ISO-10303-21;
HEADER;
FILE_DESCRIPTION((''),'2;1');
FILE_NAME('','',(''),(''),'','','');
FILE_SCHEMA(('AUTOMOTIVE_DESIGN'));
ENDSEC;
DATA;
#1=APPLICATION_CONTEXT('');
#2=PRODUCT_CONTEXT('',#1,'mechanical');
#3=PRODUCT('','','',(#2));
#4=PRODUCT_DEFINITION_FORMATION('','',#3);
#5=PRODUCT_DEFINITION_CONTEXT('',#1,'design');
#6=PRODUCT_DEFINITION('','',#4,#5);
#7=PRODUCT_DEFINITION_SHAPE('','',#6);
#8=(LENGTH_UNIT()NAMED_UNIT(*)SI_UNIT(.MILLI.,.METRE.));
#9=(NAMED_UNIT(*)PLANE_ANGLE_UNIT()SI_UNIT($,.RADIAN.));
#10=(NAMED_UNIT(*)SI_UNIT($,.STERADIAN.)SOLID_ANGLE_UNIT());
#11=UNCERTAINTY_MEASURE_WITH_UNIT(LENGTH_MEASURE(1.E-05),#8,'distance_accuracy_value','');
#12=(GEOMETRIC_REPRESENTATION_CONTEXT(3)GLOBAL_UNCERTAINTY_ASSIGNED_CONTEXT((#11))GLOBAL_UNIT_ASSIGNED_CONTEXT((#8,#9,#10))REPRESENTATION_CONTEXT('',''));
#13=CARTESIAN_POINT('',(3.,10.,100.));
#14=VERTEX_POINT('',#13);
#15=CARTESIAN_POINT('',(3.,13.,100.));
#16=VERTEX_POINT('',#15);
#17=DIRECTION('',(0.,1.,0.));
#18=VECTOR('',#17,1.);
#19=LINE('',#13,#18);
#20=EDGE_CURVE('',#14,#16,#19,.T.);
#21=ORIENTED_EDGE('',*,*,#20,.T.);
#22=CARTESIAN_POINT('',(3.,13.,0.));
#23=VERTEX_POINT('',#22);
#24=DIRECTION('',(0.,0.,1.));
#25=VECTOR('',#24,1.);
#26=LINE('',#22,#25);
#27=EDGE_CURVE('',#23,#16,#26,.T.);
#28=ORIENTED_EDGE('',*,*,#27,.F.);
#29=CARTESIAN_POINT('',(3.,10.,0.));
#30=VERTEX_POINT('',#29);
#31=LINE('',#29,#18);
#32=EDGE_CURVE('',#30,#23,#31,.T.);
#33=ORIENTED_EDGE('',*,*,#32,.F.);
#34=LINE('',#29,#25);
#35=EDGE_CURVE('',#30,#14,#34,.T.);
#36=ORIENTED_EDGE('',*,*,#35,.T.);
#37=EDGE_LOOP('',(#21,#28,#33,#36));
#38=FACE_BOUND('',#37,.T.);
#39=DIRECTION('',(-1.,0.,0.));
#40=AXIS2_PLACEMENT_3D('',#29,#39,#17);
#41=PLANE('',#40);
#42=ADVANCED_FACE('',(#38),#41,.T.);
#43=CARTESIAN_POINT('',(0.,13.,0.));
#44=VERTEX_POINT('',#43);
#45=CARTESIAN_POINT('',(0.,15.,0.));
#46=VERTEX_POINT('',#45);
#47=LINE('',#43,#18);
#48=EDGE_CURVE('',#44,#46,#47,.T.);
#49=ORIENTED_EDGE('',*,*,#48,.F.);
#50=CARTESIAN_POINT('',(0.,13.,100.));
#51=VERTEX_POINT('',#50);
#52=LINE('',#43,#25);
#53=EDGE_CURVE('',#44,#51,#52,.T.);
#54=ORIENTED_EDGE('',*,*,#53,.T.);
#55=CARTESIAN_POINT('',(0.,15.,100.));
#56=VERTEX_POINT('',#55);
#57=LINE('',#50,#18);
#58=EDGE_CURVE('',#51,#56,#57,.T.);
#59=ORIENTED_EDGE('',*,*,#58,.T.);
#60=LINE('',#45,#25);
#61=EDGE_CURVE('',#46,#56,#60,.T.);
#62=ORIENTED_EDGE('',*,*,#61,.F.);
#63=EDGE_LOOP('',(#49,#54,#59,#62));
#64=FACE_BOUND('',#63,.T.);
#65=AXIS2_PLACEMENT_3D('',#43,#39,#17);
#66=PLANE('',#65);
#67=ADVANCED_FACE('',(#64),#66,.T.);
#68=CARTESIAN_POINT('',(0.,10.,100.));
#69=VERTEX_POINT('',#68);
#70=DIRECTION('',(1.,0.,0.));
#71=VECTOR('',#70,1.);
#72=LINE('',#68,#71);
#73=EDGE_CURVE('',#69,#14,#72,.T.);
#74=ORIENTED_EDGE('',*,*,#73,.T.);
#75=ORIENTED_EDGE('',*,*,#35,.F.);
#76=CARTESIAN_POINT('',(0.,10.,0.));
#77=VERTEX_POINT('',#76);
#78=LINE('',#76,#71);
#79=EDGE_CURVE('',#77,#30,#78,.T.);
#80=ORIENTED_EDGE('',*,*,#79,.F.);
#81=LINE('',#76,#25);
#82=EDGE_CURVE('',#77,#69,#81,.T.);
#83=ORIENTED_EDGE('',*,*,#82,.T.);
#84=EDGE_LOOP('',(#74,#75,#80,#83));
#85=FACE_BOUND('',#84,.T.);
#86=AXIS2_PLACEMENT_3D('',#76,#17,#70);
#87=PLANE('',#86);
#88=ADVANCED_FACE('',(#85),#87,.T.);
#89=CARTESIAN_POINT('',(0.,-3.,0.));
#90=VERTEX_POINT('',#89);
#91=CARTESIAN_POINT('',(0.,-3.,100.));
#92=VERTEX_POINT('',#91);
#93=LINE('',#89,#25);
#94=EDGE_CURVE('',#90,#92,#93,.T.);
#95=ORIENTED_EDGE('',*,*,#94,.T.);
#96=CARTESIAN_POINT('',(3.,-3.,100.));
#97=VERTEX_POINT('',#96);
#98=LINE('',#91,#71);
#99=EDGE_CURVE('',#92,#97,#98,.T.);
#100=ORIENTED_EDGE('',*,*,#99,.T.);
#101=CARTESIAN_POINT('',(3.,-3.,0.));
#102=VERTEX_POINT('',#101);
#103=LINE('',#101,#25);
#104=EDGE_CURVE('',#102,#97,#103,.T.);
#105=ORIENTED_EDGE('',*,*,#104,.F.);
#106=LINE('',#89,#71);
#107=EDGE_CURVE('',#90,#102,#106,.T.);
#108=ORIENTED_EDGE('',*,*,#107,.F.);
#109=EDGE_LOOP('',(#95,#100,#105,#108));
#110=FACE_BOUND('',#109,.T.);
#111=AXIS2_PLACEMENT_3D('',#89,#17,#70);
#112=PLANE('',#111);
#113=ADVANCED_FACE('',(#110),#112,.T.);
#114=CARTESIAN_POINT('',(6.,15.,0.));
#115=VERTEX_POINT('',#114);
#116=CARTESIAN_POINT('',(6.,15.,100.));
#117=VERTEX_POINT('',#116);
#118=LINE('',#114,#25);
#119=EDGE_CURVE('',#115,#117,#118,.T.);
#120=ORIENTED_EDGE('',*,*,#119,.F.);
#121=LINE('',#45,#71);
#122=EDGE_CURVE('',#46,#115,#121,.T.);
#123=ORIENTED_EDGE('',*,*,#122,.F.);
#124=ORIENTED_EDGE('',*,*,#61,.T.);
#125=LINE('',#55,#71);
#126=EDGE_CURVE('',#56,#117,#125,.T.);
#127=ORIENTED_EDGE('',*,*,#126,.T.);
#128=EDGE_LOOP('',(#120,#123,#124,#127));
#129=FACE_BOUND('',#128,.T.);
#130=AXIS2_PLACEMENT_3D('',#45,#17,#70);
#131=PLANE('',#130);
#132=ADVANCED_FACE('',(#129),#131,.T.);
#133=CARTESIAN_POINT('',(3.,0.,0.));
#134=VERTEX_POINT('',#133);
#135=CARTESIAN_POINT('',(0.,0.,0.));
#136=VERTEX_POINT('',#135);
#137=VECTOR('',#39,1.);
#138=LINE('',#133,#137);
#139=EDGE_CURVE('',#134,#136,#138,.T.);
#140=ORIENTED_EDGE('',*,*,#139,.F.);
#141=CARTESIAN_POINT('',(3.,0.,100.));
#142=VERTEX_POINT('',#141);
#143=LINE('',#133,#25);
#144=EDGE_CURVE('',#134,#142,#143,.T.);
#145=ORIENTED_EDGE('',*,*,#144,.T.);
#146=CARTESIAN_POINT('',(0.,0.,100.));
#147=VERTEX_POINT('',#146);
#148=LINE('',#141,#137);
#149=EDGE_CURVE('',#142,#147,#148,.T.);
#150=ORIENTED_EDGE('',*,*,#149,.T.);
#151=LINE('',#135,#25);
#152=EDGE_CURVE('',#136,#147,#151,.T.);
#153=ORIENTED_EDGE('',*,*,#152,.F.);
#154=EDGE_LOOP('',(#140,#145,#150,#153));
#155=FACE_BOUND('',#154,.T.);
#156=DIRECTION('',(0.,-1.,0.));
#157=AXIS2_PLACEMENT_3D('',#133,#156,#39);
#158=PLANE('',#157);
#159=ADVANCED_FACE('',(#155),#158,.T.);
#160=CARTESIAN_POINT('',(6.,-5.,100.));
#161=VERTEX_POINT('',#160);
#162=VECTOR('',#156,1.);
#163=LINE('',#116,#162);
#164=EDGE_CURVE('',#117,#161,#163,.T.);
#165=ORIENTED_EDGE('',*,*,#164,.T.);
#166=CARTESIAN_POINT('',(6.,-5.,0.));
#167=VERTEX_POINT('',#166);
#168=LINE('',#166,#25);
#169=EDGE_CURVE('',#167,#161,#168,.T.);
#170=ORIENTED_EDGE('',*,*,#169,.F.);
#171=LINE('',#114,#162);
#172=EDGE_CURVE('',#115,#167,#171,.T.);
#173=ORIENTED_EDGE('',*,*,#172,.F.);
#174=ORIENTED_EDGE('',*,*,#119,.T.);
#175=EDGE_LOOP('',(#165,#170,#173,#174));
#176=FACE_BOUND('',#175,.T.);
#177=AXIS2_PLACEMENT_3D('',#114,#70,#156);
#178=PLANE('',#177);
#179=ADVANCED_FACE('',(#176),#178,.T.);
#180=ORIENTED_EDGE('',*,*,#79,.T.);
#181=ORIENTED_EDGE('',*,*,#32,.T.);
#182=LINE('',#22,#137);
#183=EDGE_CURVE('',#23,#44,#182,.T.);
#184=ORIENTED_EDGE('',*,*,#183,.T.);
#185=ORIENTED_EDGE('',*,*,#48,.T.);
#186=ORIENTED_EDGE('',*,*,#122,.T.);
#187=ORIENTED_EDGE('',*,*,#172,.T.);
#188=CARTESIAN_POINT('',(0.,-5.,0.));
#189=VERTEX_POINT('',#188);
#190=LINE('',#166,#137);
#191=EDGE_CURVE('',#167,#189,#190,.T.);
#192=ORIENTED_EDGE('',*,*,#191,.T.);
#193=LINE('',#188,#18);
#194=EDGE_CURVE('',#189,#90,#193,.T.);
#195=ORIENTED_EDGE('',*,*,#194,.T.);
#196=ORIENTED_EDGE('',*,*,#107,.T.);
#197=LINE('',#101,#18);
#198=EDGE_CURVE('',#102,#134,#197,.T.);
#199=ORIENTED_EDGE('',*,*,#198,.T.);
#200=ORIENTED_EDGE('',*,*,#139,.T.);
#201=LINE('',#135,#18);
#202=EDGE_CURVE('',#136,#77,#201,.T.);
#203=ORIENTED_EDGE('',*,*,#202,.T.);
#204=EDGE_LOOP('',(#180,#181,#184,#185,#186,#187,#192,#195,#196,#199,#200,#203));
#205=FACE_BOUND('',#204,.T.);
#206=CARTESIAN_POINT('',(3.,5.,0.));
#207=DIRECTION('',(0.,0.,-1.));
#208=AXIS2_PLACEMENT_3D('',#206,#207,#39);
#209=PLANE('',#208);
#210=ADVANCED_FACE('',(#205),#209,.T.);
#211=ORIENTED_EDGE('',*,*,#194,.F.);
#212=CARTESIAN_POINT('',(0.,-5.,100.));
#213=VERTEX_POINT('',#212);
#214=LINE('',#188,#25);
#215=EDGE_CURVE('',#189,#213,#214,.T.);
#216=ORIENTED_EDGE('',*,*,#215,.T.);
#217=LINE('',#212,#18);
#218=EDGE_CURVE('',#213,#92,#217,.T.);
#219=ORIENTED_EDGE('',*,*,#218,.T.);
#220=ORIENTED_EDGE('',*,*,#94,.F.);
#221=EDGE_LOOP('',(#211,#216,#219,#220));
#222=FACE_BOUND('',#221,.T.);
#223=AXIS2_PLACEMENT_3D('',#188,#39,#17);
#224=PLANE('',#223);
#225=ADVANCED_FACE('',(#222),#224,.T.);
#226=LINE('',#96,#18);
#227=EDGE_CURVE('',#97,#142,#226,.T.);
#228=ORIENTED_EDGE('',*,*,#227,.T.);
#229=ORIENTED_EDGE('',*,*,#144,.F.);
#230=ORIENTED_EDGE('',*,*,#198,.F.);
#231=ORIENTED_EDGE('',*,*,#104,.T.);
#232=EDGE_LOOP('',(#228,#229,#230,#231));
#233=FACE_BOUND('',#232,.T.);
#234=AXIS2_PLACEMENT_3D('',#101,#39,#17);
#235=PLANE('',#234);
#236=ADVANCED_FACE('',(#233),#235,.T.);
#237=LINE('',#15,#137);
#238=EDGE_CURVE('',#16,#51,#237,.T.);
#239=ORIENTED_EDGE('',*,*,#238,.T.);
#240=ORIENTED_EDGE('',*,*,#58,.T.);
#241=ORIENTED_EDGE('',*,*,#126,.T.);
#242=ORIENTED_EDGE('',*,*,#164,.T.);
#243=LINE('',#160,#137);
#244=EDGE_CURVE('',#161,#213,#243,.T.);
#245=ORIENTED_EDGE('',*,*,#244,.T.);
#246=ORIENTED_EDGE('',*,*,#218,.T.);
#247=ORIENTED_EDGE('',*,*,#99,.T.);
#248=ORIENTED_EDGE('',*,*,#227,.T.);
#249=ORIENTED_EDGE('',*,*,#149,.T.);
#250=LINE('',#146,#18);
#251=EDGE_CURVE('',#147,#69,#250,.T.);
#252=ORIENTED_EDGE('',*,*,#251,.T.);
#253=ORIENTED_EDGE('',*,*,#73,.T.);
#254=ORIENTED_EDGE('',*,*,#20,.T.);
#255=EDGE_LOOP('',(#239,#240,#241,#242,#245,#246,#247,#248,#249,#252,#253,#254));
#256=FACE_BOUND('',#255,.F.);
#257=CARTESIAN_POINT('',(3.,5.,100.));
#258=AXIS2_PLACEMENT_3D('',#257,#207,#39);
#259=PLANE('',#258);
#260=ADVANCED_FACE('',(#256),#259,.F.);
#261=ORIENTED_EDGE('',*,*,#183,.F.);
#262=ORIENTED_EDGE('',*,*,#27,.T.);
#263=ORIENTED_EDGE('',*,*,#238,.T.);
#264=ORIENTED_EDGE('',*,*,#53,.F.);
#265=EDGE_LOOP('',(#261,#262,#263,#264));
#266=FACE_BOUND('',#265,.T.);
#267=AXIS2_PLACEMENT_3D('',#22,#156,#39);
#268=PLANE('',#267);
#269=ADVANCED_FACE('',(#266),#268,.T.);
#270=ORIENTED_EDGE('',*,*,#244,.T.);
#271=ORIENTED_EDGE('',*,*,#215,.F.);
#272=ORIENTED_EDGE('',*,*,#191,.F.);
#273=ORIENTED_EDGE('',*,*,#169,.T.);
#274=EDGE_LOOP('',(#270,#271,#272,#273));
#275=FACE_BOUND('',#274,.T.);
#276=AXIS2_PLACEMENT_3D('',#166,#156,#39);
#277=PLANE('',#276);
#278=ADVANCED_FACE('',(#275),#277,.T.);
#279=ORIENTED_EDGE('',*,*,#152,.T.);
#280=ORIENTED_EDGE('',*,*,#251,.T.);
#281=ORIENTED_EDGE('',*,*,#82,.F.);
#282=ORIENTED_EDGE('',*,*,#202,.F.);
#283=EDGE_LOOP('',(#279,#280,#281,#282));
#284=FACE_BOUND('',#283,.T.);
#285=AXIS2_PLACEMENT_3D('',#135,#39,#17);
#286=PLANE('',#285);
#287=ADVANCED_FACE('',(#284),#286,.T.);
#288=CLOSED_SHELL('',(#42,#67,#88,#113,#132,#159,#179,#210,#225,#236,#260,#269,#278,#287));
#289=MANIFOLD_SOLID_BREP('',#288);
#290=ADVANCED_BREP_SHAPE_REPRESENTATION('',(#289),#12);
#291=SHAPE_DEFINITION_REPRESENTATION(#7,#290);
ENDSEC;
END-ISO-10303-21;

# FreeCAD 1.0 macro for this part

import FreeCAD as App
import Part
import Sketcher

V = App.Vector

doc = App.newDocument("Part")
body = doc.addObject("PartDesign::Body", "Body")

# Sketch on XY plane
sketch1 = body.newObject("Sketcher::SketchObject", "Sketch")
sketch1.AttachmentSupport = (doc.getObject("XY_Plane"), [""])
sketch1.MapMode = "FlatFace"
sketch1.addGeometry(Part.LineSegment(V(0, 10, 0), V(0, 0, 0)), False)
sketch1.addGeometry(Part.LineSegment(V(0, 0, 0), V(3, 0, 0)), False)
sketch1.addGeometry(Part.LineSegment(V(3, 0, 0), V(3, -3, 0)), False)
sketch1.addGeometry(Part.LineSegment(V(3, -3, 0), V(0, -3, 0)), False)
sketch1.addGeometry(Part.LineSegment(V(0, -3, 0), V(0, -5, 0)), False)
sketch1.addGeometry(Part.LineSegment(V(0, -5, 0), V(6, -5, 0)), False)
sketch1.addGeometry(Part.LineSegment(V(6, -5, 0), V(6, 15, 0)), False)
sketch1.addGeometry(Part.LineSegment(V(6, 15, 0), V(0, 15, 0)), False)
sketch1.addGeometry(Part.LineSegment(V(0, 15, 0), V(0, 13, 0)), False)
sketch1.addGeometry(Part.LineSegment(V(0, 13, 0), V(3, 13, 0)), False)
sketch1.addGeometry(Part.LineSegment(V(3, 13, 0), V(3, 10, 0)), False)
sketch1.addGeometry(Part.LineSegment(V(3, 10, 0), V(0, 10, 0)), False)
sketch1.addConstraint(Sketcher.Constraint("Coincident", 0, 2, 1, 1))
sketch1.addConstraint(Sketcher.Constraint("Coincident", 1, 2, 2, 1))
sketch1.addConstraint(Sketcher.Constraint("Coincident", 2, 2, 3, 1))
sketch1.addConstraint(Sketcher.Constraint("Coincident", 3, 2, 4, 1))
sketch1.addConstraint(Sketcher.Constraint("Coincident", 4, 2, 5, 1))
sketch1.addConstraint(Sketcher.Constraint("Coincident", 5, 2, 6, 1))
sketch1.addConstraint(Sketcher.Constraint("Coincident", 6, 2, 7, 1))
sketch1.addConstraint(Sketcher.Constraint("Coincident", 7, 2, 8, 1))
sketch1.addConstraint(Sketcher.Constraint("Coincident", 8, 2, 9, 1))
sketch1.addConstraint(Sketcher.Constraint("Coincident", 9, 2, 10, 1))
sketch1.addConstraint(Sketcher.Constraint("Coincident", 10, 2, 11, 1))
sketch1.addConstraint(Sketcher.Constraint("Coincident", 11, 2, 0, 1))
sketch1.addConstraint(Sketcher.Constraint("Vertical", 0))
sketch1.addConstraint(Sketcher.Constraint("Horizontal", 1))
sketch1.addConstraint(Sketcher.Constraint("Vertical", 2))
sketch1.addConstraint(Sketcher.Constraint("Horizontal", 3))
sketch1.addConstraint(Sketcher.Constraint("Vertical", 4))
sketch1.addConstraint(Sketcher.Constraint("Horizontal", 5))
sketch1.addConstraint(Sketcher.Constraint("Vertical", 6))
sketch1.addConstraint(Sketcher.Constraint("Horizontal", 7))
sketch1.addConstraint(Sketcher.Constraint("Vertical", 8))
sketch1.addConstraint(Sketcher.Constraint("Horizontal", 9))
sketch1.addConstraint(Sketcher.Constraint("Vertical", 10))
sketch1.addConstraint(Sketcher.Constraint("Horizontal", 11))
sketch1.addConstraint(Sketcher.Constraint("Coincident", 0, 2, -1, 1))
sketch1.addConstraint(Sketcher.Constraint("PointOnObject", 3, 2, -2))
sketch1.addConstraint(Sketcher.Constraint("PointOnObject", 7, 2, -2))
sketch1.addConstraint(Sketcher.Constraint("Vertical", 2, 2, 9, 2))
sketch1.addConstraint(Sketcher.Constraint("Equal", 11, 2))
sketch1.addConstraint(Sketcher.Constraint("Equal", 4, 8))
sketch1.addConstraint(Sketcher.Constraint("Equal", 2, 10))
sketch1.addConstraint(Sketcher.Constraint("DistanceX", 1, 1, 1, 2, 3.0))
sketch1.addConstraint(Sketcher.Constraint("DistanceX", 5, 1, 5, 2, 6.0))
sketch1.addConstraint(Sketcher.Constraint("DistanceY", 0, 2, 0, 1, 10.0))
sketch1.addConstraint(Sketcher.Constraint("DistanceY", 4, 2, 4, 1, 2.0))
pad1 = body.newObject("PartDesign::Pad", "Pad")
pad1.Profile = sketch1
pad1.Length = 100

doc.recompute()
